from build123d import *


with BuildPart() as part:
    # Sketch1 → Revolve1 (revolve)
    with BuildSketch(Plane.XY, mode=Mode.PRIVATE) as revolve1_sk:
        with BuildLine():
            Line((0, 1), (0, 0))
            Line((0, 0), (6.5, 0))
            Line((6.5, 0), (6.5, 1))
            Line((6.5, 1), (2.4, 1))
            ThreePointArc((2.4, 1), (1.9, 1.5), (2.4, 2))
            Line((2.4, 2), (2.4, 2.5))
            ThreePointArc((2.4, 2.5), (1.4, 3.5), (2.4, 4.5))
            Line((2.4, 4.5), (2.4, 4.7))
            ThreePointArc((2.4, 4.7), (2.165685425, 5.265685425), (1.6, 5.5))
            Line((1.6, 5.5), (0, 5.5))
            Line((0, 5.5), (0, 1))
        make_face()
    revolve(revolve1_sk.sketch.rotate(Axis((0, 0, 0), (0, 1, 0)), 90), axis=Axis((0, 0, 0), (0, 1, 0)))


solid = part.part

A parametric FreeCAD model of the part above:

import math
import FreeCAD as App
import Part
import Sketcher

doc = App.newDocument("Part")
body = doc.addObject("PartDesign::Body", "Body")

# Sketch on XY plane
sketch1 = body.newObject("Sketcher::SketchObject", "Sketch")
sketch1.AttachmentSupport = (doc.getObject("XY_Plane"), [""])
sketch1.MapMode = "FlatFace"
sketch1.addGeometry(Part.LineSegment(App.Vector(0, 0, 0), App.Vector(6.5, 0, 0)), False)
sketch1.addGeometry(Part.LineSegment(App.Vector(6.5, 0, 0), App.Vector(6.5, 1, 0)), False)
sketch1.addGeometry(Part.LineSegment(App.Vector(6.5, 1, 0), App.Vector(2.4, 1, 0)), False)
sketch1.addGeometry(Part.ArcOfCircle(Part.Circle(App.Vector(2.4, 1.5, 0), App.Vector(0, 0, 1), 0.5), math.radians(90), math.radians(270)), False)
sketch1.addGeometry(Part.LineSegment(App.Vector(2.4, 2, 0), App.Vector(2.4, 2.5, 0)), False)
sketch1.addGeometry(Part.ArcOfCircle(Part.Circle(App.Vector(2.4, 3.5, 0), App.Vector(0, 0, 1), 1), math.radians(90), math.radians(270)), False)
sketch1.addGeometry(Part.LineSegment(App.Vector(2.4, 4.5, 0), App.Vector(2.4, 4.7, 0)), False)
sketch1.addGeometry(Part.ArcOfCircle(Part.Circle(App.Vector(1.6, 4.7, 0), App.Vector(0, 0, 1), 0.8), math.radians(0), math.radians(90)), False)
sketch1.addGeometry(Part.LineSegment(App.Vector(1.6, 5.5, 0), App.Vector(0, 5.5, 0)), False)
sketch1.addGeometry(Part.LineSegment(App.Vector(0, 5.5, 0), App.Vector(0, 0, 0)), False)
sketch1.addConstraint(Sketcher.Constraint("Coincident", 0, 2, 1, 1))
sketch1.addConstraint(Sketcher.Constraint("Coincident", 1, 2, 2, 1))
sketch1.addConstraint(Sketcher.Constraint("Tangent", 2, 2, 3, 2))
sketch1.addConstraint(Sketcher.Constraint("Coincident", 3, 1, 4, 1))
sketch1.addConstraint(Sketcher.Constraint("Coincident", 4, 2, 5, 2))
sketch1.addConstraint(Sketcher.Constraint("Coincident", 5, 1, 6, 1))
sketch1.addConstraint(Sketcher.Constraint("Tangent", 6, 2, 7, 1))
sketch1.addConstraint(Sketcher.Constraint("Tangent", 7, 2, 8, 1))
sketch1.addConstraint(Sketcher.Constraint("Coincident", 8, 2, 9, 1))
sketch1.addConstraint(Sketcher.Constraint("Coincident", 9, 2, 0, 1))
sketch1.addConstraint(Sketcher.Constraint("Horizontal", 0))
sketch1.addConstraint(Sketcher.Constraint("Vertical", 1))
sketch1.addConstraint(Sketcher.Constraint("Horizontal", 2))
sketch1.addConstraint(Sketcher.Constraint("Vertical", 4))
sketch1.addConstraint(Sketcher.Constraint("Vertical", 6))
sketch1.addConstraint(Sketcher.Constraint("Horizontal", 8))
sketch1.addConstraint(Sketcher.Constraint("Vertical", 9))
sketch1.addConstraint(Sketcher.Constraint("Coincident", 9, 2, -1, 1))
sketch1.addConstraint(Sketcher.Constraint("Vertical", 3, 3, 5, 3))
sketch1.addConstraint(Sketcher.Constraint("Vertical", 2, 2, 3, 1))
sketch1.addConstraint(Sketcher.Constraint("Vertical", 4, 2, 5, 1))
sketch1.addConstraint(Sketcher.Constraint("Radius", 5, 1.0))
sketch1.addConstraint(Sketcher.Constraint("Radius", 3, 0.5))
sketch1.addConstraint(Sketcher.Constraint("Radius", 7, 0.8))
sketch1.addConstraint(Sketcher.Constraint("DistanceY", 1, 1, 1, 2, 1.0))
sketch1.addConstraint(Sketcher.Constraint("DistanceX", 0, 1, 0, 2, 6.5))
sketch1.addConstraint(Sketcher.Constraint("DistanceX", 2, 2, 2, 1, 4.1))
sketch1.addConstraint(Sketcher.Constraint("DistanceY", 4, 1, 4, 2, 0.5))
sketch1.addConstraint(Sketcher.Constraint("DistanceY", 6, 1, 6, 2, 0.2))
revolution = body.newObject("PartDesign::Revolution", "Revolution")
revolution.Profile = sketch1
revolution.ReferenceAxis = (sketch1, ["V_Axis"])
revolution.Angle = 360

doc.recompute()
